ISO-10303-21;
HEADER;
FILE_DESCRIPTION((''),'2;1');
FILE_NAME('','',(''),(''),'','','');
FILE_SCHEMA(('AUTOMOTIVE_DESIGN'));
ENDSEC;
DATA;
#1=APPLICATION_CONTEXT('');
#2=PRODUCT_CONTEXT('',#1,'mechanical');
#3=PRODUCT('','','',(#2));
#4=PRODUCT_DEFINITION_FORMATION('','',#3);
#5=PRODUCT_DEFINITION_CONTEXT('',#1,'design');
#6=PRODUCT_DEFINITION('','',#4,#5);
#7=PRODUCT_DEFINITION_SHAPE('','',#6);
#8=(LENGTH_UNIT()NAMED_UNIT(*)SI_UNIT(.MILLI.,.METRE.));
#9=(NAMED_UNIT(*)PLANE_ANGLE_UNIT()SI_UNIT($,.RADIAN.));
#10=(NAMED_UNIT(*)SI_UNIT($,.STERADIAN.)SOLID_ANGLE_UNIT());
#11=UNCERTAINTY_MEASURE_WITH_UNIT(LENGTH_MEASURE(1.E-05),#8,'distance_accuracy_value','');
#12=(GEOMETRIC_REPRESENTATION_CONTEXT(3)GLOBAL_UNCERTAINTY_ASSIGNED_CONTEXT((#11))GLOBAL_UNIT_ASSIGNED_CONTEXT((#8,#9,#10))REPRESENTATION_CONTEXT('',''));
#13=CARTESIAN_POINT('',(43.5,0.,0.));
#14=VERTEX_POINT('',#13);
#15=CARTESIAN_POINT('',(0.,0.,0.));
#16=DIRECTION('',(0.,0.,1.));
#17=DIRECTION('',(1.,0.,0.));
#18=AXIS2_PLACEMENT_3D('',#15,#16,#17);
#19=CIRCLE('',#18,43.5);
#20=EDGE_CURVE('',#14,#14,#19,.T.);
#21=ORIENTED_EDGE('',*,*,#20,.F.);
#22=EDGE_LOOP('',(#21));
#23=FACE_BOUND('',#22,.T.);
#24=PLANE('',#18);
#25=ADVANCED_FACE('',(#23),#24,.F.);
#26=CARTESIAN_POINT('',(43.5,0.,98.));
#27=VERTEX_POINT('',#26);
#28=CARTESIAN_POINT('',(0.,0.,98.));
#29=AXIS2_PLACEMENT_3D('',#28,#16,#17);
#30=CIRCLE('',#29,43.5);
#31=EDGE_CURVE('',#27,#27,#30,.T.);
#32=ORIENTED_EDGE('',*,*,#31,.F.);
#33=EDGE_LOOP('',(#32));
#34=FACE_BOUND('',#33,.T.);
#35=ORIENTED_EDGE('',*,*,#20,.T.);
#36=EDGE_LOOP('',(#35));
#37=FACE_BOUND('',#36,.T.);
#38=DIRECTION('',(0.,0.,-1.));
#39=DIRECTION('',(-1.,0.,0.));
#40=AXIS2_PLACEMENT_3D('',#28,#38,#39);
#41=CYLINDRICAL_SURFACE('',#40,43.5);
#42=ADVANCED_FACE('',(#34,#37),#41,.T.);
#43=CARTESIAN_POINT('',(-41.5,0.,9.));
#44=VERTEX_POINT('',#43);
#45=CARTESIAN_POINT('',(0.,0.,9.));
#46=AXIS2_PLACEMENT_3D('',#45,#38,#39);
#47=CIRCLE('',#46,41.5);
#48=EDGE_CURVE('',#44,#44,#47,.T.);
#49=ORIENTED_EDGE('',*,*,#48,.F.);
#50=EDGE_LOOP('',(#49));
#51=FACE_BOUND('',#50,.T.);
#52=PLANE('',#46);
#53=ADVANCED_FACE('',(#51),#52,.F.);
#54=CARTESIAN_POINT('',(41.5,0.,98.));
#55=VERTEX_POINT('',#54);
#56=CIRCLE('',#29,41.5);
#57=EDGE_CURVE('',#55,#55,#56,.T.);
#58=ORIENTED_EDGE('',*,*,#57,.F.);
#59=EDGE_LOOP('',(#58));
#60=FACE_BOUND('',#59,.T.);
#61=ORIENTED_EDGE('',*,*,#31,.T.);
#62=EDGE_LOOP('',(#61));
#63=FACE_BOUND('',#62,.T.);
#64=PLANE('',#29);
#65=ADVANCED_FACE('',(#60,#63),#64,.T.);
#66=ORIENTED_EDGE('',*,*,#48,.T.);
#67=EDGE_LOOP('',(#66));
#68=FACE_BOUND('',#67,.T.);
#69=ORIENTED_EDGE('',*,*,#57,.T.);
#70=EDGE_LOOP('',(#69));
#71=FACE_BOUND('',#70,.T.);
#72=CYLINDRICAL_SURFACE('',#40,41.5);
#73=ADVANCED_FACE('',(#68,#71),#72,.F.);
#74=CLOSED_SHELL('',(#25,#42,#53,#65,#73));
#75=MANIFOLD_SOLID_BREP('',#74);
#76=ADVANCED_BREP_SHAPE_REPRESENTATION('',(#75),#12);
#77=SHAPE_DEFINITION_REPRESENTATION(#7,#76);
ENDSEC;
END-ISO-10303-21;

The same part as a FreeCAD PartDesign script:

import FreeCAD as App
import Part
import Sketcher

V = App.Vector

doc = App.newDocument("Part")
params = doc.addObject("Spreadsheet::Sheet", "Params")
for row, (alias, value) in enumerate([
    ("sketch1_diameter", "87 mm"),
    ("sketch1_diameter2", "83 mm"),
    ("pad1_length", "98 mm"),
    ("sketch2_diameter", "83 mm"),
    ("pad2_length", "9 mm"),
], start=1):
    params.set(f"A{row}", alias)
    params.set(f"B{row}", "=" + value)
    params.setAlias(f"B{row}", alias)

body = doc.addObject("PartDesign::Body", "Body")

# Sketch on XY plane
sketch1 = doc.addObject("Sketcher::SketchObject", "Sketch")
body.addObject(sketch1)
sketch1.AttachmentSupport = (doc.XY_Plane, [""])
sketch1.MapMode = "FlatFace"
sketch1.addGeometry(Part.Circle(V(0, 0, 0), V(0, 0, 1), 44), False)
sketch1.addGeometry(Part.Circle(V(0, 0, 0), V(0, 0, 1), 42), False)
sketch1.addConstraint(Sketcher.Constraint("Coincident", 0, 3, -1, 1))
sketch1.addConstraint(Sketcher.Constraint("Coincident", 1, 3, -1, 1))
sketch1.addConstraint(Sketcher.Constraint("Diameter", 0, 87.0))
sketch1.addConstraint(Sketcher.Constraint("Diameter", 1, 83.0))
sketch1.setExpression("Constraints[2]", "Params.sketch1_diameter")
sketch1.setExpression("Constraints[3]", "Params.sketch1_diameter2")
pad1 = doc.addObject("PartDesign::Pad", "Pad")
body.addObject(pad1)
pad1.Profile = sketch1
pad1.setExpression("Length", "Params.pad1_length")

# Sketch on XY plane
sketch2 = doc.addObject("Sketcher::SketchObject", "Sketch001")
body.addObject(sketch2)
sketch2.AttachmentSupport = (doc.XY_Plane, [""])
sketch2.MapMode = "FlatFace"
sketch2.addGeometry(Part.Circle(V(0, 0, 0), V(0, 0, 1), 42), False)
sketch2.addConstraint(Sketcher.Constraint("Coincident", 0, 3, -1, 1))
sketch2.addConstraint(Sketcher.Constraint("Diameter", 0, 83.0))
sketch2.setExpression("Constraints[1]", "Params.sketch2_diameter")
pad2 = doc.addObject("PartDesign::Pad", "Pad001")
body.addObject(pad2)
pad2.Profile = sketch2
pad2.setExpression("Length", "Params.pad2_length")

doc.recompute()
